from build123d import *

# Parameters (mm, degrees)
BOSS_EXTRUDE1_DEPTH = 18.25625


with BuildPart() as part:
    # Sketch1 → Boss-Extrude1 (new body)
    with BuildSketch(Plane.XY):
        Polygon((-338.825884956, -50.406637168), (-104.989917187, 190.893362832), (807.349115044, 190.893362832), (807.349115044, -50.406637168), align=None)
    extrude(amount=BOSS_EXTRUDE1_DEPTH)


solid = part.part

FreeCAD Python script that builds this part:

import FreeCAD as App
import Part
import Sketcher
Q = App.Units.Quantity


def add_polygon(sketch, points):
    """Adds a closed chain of lines whose ends are joined by coincident constraints."""
    first, n = sketch.GeometryCount, len(points)
    for a, b in zip(points, points[1:] + points[:1]):
        sketch.addGeometry(Part.LineSegment(App.Vector(*a, 0), App.Vector(*b, 0)), False)
    for i in range(n):
        sketch.addConstraint(Sketcher.Constraint("Coincident", first + i, 2, first + (i + 1) % n, 1))

doc = App.newDocument("Part")
body = doc.addObject("PartDesign::Body", "Body")

# Sketch on XY plane
sketch1 = doc.addObject("Sketcher::SketchObject", "Sketch")
body.addObject(sketch1)
sketch1.AttachmentSupport = (doc.XY_Plane, [""])
sketch1.MapMode = "FlatFace"
add_polygon(sketch1, [(-104.989917, 190.893363), (-338.825885, -50.406637), (807.349115, -50.406637), (807.349115, 190.893363)])  # lines 0-3
sketch1.addConstraint([
    Sketcher.Constraint("Horizontal", 1),
    Sketcher.Constraint("Vertical", 2),
    Sketcher.Constraint("Horizontal", 3),
    Sketcher.Constraint("DistanceY", 2, 1, 2, 2, Q("9.5 in")),
    Sketcher.Constraint("Angle", 0, Q("-134.1 deg")),
    Sketcher.Constraint("DistanceX", 1, 1, 1, 2, Q("45.125 in")),
    Sketcher.Constraint("DistanceX", 0, 2, -1, 1, Q("338.825885 mm")),
    Sketcher.Constraint("DistanceY", 0, 2, -1, 1, Q("50.406637 mm")),
])
pad1 = doc.addObject("PartDesign::Pad", "Pad")
body.addObject(pad1)
pad1.Profile = sketch1
pad1.Length = Q("0.71875 in")

doc.recompute()
